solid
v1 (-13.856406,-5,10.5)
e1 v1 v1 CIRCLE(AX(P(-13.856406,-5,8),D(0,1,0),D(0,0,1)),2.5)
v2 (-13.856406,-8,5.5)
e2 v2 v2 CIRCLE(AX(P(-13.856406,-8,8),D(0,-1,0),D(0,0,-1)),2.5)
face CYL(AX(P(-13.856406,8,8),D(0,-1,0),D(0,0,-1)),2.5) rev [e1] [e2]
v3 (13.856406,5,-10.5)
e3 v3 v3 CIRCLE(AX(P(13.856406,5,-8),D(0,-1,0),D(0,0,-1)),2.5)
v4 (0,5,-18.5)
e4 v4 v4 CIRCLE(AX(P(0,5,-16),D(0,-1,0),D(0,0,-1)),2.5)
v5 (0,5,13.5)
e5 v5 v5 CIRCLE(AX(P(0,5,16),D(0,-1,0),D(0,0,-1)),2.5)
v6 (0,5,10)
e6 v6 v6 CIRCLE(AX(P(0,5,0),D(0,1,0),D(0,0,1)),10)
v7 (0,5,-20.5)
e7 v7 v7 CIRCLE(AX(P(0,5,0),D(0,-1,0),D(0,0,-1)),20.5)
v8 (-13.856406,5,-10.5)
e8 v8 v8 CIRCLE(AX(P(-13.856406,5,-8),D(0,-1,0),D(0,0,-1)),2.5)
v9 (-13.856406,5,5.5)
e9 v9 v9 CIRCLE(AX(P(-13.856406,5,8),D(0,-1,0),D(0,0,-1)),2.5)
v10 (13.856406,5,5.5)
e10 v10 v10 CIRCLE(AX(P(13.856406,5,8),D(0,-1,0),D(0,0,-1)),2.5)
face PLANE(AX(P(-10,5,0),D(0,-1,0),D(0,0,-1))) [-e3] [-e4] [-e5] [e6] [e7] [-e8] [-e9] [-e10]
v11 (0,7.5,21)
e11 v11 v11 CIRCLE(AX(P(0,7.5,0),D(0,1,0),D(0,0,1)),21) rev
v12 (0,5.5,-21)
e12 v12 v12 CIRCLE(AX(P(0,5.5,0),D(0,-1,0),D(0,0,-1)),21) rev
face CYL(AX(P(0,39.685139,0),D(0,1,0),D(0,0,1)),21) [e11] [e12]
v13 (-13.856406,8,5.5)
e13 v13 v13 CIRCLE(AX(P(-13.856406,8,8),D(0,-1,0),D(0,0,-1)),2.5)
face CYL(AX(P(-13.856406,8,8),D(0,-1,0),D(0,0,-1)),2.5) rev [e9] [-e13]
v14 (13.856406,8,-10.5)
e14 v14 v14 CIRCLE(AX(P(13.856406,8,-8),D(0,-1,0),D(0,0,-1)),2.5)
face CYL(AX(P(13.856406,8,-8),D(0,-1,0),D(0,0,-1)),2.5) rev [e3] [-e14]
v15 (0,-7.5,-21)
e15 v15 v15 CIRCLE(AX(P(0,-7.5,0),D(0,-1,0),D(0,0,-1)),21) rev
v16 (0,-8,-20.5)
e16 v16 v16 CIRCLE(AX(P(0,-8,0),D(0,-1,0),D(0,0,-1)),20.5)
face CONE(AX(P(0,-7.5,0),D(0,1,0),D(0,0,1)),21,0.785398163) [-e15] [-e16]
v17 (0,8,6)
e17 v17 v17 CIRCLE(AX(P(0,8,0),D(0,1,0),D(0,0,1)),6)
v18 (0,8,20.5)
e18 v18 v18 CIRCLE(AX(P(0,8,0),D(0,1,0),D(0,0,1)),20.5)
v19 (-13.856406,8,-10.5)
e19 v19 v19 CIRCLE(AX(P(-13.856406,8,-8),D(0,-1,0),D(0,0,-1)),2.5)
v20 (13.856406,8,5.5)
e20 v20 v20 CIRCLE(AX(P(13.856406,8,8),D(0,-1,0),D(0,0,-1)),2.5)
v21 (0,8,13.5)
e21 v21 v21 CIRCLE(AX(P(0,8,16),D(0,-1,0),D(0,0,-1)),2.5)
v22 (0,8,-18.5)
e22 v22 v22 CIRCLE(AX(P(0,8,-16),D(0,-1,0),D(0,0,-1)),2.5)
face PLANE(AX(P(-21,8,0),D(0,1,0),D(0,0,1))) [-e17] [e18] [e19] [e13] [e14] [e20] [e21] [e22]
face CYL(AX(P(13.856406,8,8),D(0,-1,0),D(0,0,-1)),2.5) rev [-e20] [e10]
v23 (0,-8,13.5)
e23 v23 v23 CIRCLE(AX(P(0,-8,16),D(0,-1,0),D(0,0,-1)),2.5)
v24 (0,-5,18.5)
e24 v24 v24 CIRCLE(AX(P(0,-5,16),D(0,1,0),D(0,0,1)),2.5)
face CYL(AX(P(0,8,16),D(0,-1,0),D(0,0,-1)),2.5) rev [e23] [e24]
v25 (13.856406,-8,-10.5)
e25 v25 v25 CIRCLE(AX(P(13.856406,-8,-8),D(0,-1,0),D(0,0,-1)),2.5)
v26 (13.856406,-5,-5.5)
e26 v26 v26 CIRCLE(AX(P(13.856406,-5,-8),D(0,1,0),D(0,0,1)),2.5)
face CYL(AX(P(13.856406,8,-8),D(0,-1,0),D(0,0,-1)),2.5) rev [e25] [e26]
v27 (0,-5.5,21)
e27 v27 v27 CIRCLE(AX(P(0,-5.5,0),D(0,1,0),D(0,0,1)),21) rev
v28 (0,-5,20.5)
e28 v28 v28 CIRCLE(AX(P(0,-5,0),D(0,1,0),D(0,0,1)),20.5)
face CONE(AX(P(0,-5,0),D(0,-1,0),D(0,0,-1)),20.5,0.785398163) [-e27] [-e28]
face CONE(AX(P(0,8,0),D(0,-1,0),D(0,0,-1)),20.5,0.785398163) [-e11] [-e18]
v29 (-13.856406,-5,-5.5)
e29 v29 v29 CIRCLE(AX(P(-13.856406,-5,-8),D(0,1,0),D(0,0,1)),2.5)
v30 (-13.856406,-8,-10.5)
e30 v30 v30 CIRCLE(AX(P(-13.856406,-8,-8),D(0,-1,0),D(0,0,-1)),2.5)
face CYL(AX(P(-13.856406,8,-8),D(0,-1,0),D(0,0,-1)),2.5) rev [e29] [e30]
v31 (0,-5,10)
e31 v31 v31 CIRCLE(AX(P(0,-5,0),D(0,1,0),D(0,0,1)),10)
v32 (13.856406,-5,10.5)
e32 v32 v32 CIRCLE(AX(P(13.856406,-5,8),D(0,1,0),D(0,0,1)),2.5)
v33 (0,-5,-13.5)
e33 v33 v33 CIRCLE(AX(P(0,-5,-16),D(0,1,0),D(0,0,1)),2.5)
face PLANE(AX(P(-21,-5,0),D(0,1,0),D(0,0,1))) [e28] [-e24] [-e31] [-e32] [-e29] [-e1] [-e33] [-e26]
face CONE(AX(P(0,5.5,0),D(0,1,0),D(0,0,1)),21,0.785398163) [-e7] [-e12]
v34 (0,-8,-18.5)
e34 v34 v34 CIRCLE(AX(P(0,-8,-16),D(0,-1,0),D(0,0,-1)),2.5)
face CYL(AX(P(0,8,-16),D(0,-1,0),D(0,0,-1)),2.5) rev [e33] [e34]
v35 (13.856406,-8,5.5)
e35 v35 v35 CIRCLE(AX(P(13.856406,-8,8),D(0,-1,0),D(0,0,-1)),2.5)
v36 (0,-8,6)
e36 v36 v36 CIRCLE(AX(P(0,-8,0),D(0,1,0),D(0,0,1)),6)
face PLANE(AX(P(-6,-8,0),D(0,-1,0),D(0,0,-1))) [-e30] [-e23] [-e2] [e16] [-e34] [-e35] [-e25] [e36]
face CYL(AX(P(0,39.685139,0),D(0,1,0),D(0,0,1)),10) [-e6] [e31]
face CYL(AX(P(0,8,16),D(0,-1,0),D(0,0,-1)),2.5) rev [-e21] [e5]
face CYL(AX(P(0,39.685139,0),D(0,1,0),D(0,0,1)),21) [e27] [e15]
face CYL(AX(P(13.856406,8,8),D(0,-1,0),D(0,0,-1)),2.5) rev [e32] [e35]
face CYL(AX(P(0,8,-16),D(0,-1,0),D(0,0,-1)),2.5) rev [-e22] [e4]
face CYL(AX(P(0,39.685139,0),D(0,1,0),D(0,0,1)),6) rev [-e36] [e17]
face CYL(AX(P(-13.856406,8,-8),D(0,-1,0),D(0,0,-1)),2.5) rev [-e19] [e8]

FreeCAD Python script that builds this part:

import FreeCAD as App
import Part
import Sketcher
from FreeCAD import Vector


def edges_at(feature, points):
    """Names of the edges that pass closest to the given points."""
    edges = feature.Shape.Edges
    near = lambda p: min(range(len(edges)), key=lambda i: edges[i].distToShape(Part.Vertex(*p))[0])
    return sorted({f"Edge{near(p) + 1}" for p in points})

doc = App.newDocument("Part")
body = doc.addObject("PartDesign::Body", "Body")

sketch1 = body.newObject("Sketcher::SketchObject", "Sketch")
sketch1.AttachmentSupport = (doc.getObject("XY_Plane"), [""])
sketch1.MapMode = "FlatFace"
sketch1.addGeometry(Part.LineSegment(Vector(-6, -8, 0), Vector(-6, 8, 0)), False)
sketch1.addGeometry(Part.LineSegment(Vector(-6, 8, 0), Vector(-21, 8, 0)), False)
sketch1.addGeometry(Part.LineSegment(Vector(-21, 8, 0), Vector(-21, 5, 0)), False)
sketch1.addGeometry(Part.LineSegment(Vector(-21, 5, 0), Vector(-10, 5, 0)), False)
sketch1.addGeometry(Part.LineSegment(Vector(-10, 5, 0), Vector(-10, -5, 0)), False)
sketch1.addGeometry(Part.LineSegment(Vector(-10, -5, 0), Vector(-21, -5, 0)), False)
sketch1.addGeometry(Part.LineSegment(Vector(-21, -5, 0), Vector(-21, -8, 0)), False)
sketch1.addGeometry(Part.LineSegment(Vector(-21, -8, 0), Vector(-6, -8, 0)), False)
sketch1.addConstraint(Sketcher.Constraint("Coincident", 0, 2, 1, 1))
sketch1.addConstraint(Sketcher.Constraint("Coincident", 1, 2, 2, 1))
sketch1.addConstraint(Sketcher.Constraint("Coincident", 2, 2, 3, 1))
sketch1.addConstraint(Sketcher.Constraint("Coincident", 3, 2, 4, 1))
sketch1.addConstraint(Sketcher.Constraint("Coincident", 4, 2, 5, 1))
sketch1.addConstraint(Sketcher.Constraint("Coincident", 5, 2, 6, 1))
sketch1.addConstraint(Sketcher.Constraint("Coincident", 6, 2, 7, 1))
sketch1.addConstraint(Sketcher.Constraint("Coincident", 7, 2, 0, 1))
sketch1.addConstraint(Sketcher.Constraint("Vertical", 0))
sketch1.addConstraint(Sketcher.Constraint("Horizontal", 1))
sketch1.addConstraint(Sketcher.Constraint("Vertical", 2))
sketch1.addConstraint(Sketcher.Constraint("Horizontal", 3))
sketch1.addConstraint(Sketcher.Constraint("Vertical", 4))
sketch1.addConstraint(Sketcher.Constraint("Horizontal", 5))
sketch1.addConstraint(Sketcher.Constraint("Vertical", 6))
sketch1.addConstraint(Sketcher.Constraint("Horizontal", 7))
sketch1.addConstraint(Sketcher.Constraint("Symmetric", 2, 2, 5, 2, -1))
sketch1.addConstraint(Sketcher.Constraint("Equal", 2, 6))
sketch1.addConstraint(Sketcher.Constraint("DistanceX", 1, 2, 1, 1, 15.0))
sketch1.addConstraint(Sketcher.Constraint("DistanceX", 3, 1, 3, 2, 11.0))
sketch1.addConstraint(Sketcher.Constraint("DistanceY", 0, 1, 0, 2, 16.0))
sketch1.addConstraint(Sketcher.Constraint("DistanceY", 2, 2, 2, 1, 3.0))
sketch1.addConstraint(Sketcher.Constraint("DistanceX", 0, 2, -1, 1, 6.0))
revolution = body.newObject("PartDesign::Revolution", "Revolution")
revolution.Profile = sketch1
revolution.ReferenceAxis = (sketch1, ["V_Axis"])
revolution.Angle = 360
doc.recompute()

chamfer = body.newObject("PartDesign::Chamfer", "Chamfer")
chamfer.Base = (revolution, edges_at(revolution, [
    (21, -8, 0),
    (21, 8, 0),
    (21, 5, 0),
    (21, -5, 0),
]))
chamfer.Size = 0.5

sketch2 = body.newObject("Sketcher::SketchObject", "Sketch001")
sketch2.AttachmentSupport = (doc.getObject("XZ_Plane"), [""])
sketch2.MapMode = "FlatFace"
sketch2.AttachmentOffset = App.Placement(Vector(0, 0, 8), App.Rotation())
sketch2.addGeometry(Part.Circle(Vector(0, 16, 0), Vector(0, 0, 1), 2.5), False)
sketch2.addGeometry(Part.Circle(Vector(13.9, 8, 0), Vector(0, 0, 1), 2.5), False)
sketch2.addGeometry(Part.Circle(Vector(13.9, -8, 0), Vector(0, 0, 1), 2.5), False)
sketch2.addGeometry(Part.Circle(Vector(0, -16, 0), Vector(0, 0, 1), 2.5), False)
sketch2.addGeometry(Part.Circle(Vector(-13.9, -8, 0), Vector(0, 0, 1), 2.5), False)
sketch2.addGeometry(Part.Circle(Vector(-13.9, 8, 0), Vector(0, 0, 1), 2.5), False)
sketch2.addConstraint(Sketcher.Constraint("Equal", 0, 1))
sketch2.addConstraint(Sketcher.Constraint("Equal", 1, 2))
sketch2.addConstraint(Sketcher.Constraint("Equal", 2, 3))
sketch2.addConstraint(Sketcher.Constraint("Equal", 3, 4))
sketch2.addConstraint(Sketcher.Constraint("Equal", 4, 5))
sketch2.addConstraint(Sketcher.Constraint("Symmetric", 0, 3, 3, 3, -1, 1))
sketch2.addConstraint(Sketcher.Constraint("Symmetric", 1, 3, 4, 3, -1, 1))
sketch2.addConstraint(Sketcher.Constraint("Symmetric", 2, 3, 5, 3, -1, 1))
sketch2.addConstraint(Sketcher.Constraint("Symmetric", 2, 3, 4, 3, -2))
sketch2.addConstraint(Sketcher.Constraint("PointOnObject", 0, 3, -2))
sketch2.addConstraint(Sketcher.Constraint("Diameter", 0, 5.0))
sketch2.addConstraint(Sketcher.Constraint("DistanceY", -1, 1, 0, 3, 16.0))
sketch2.addConstraint(Sketcher.Constraint("DistanceY", -1, 1, 1, 3, 8.0))
sketch2.addConstraint(Sketcher.Constraint("DistanceX", -1, 1, 1, 3, 13.856406))
pocket1 = body.newObject("PartDesign::Pocket", "Pocket")
pocket1.Profile = sketch2
pocket1.Type = "ThroughAll"
pocket1.Midplane = True

doc.recompute()
